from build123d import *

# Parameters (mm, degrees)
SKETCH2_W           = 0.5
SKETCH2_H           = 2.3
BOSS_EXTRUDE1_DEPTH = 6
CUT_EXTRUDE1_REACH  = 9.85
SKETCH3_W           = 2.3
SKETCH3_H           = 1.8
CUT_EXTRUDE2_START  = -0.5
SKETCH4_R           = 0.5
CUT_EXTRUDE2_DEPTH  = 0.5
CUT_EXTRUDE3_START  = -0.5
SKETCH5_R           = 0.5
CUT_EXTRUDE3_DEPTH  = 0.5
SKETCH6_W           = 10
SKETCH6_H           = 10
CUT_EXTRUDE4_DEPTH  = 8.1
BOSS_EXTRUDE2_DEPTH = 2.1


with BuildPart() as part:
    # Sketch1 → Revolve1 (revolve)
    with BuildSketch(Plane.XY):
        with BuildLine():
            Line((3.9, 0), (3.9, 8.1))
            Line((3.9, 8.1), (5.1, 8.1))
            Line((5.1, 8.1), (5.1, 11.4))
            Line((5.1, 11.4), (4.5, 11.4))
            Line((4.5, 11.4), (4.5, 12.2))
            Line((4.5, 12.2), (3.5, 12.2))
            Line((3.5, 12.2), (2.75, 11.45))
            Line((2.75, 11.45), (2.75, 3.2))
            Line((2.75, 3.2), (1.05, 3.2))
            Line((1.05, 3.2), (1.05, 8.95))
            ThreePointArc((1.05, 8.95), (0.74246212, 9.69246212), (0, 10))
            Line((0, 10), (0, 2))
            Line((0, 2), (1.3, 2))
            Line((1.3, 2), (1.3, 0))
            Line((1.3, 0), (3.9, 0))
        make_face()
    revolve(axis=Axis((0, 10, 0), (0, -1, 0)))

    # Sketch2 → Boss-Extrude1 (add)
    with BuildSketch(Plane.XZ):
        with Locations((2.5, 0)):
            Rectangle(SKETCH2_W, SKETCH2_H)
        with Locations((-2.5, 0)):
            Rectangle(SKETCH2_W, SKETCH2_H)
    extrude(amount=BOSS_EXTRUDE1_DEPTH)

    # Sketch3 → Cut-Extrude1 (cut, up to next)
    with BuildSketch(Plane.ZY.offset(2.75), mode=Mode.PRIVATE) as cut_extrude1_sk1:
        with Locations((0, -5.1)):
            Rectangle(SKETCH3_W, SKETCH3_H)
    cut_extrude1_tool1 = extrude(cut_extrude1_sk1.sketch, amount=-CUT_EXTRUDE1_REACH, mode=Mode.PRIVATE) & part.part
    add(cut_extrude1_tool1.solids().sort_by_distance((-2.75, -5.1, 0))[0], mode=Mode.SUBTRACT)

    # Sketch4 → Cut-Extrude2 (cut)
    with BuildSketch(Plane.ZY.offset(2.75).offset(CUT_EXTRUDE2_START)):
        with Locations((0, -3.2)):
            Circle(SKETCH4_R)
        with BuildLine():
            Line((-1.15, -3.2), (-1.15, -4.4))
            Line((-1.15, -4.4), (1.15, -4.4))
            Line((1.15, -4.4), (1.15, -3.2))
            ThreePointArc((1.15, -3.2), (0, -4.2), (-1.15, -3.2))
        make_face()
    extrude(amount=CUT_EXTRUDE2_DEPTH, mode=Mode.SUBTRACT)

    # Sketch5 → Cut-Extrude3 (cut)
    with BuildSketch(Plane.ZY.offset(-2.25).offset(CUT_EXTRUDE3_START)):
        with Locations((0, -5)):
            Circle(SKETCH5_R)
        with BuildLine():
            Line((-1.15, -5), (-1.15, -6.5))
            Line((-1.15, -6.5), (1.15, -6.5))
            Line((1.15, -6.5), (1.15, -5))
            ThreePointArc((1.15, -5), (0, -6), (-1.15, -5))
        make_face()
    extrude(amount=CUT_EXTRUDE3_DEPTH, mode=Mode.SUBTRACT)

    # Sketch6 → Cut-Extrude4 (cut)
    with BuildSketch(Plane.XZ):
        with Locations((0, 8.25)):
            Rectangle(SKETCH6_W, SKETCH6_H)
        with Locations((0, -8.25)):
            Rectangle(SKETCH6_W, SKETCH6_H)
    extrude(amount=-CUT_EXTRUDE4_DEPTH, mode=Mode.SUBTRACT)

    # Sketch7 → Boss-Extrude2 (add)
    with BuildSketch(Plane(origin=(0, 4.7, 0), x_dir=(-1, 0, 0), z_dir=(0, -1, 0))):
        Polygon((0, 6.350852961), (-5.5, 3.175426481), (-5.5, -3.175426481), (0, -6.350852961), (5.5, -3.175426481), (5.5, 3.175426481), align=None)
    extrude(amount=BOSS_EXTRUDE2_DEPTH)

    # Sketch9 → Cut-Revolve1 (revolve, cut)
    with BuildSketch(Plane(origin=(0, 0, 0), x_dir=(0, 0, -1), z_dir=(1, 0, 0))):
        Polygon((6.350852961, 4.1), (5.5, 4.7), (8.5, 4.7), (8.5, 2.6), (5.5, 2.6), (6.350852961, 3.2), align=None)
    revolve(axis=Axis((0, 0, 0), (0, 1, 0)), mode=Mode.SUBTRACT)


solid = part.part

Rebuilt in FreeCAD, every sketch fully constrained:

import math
import FreeCAD as App
import Part
import Sketcher
Q = App.Units.Quantity


def add_polygon(sketch, points):
    """Adds a closed chain of lines whose ends are joined by coincident constraints."""
    first, n = sketch.GeometryCount, len(points)
    for a, b in zip(points, points[1:] + points[:1]):
        sketch.addGeometry(Part.LineSegment(App.Vector(*a, 0), App.Vector(*b, 0)), False)
    for i in range(n):
        sketch.addConstraint(Sketcher.Constraint("Coincident", first + i, 2, first + (i + 1) % n, 1))

doc = App.newDocument("Part")
body = doc.addObject("PartDesign::Body", "Body")

# Sketch on XY plane
sketch1 = body.newObject("Sketcher::SketchObject", "Sketch")
sketch1.AttachmentSupport = (doc.getObject("XY_Plane"), [""])
sketch1.MapMode = "FlatFace"
sketch1.addGeometry(Part.LineSegment(App.Vector(3.9, 0, 0), App.Vector(3.9, 8.1, 0)), False)
sketch1.addGeometry(Part.LineSegment(App.Vector(3.9, 8.1, 0), App.Vector(5.1, 8.1, 0)), False)
sketch1.addGeometry(Part.LineSegment(App.Vector(5.1, 8.1, 0), App.Vector(5.1, 11.4, 0)), False)
sketch1.addGeometry(Part.LineSegment(App.Vector(5.1, 11.4, 0), App.Vector(4.5, 11.4, 0)), False)
sketch1.addGeometry(Part.LineSegment(App.Vector(4.5, 11.4, 0), App.Vector(4.5, 12.2, 0)), False)
sketch1.addGeometry(Part.LineSegment(App.Vector(4.5, 12.2, 0), App.Vector(3.5, 12.2, 0)), False)
sketch1.addGeometry(Part.LineSegment(App.Vector(3.5, 12.2, 0), App.Vector(2.75, 11.45, 0)), False)
sketch1.addGeometry(Part.LineSegment(App.Vector(2.75, 11.45, 0), App.Vector(2.75, 3.2, 0)), False)
sketch1.addGeometry(Part.LineSegment(App.Vector(2.75, 3.2, 0), App.Vector(1.05, 3.2, 0)), False)
sketch1.addGeometry(Part.LineSegment(App.Vector(1.05, 3.2, 0), App.Vector(1.05, 8.95, 0)), False)
sketch1.addGeometry(Part.ArcOfCircle(Part.Circle(App.Vector(0, 8.95, 0), App.Vector(0, 0, 1), 1.05), math.radians(0), math.radians(90)), False)
sketch1.addGeometry(Part.LineSegment(App.Vector(0, 10, 0), App.Vector(0, 2, 0)), False)
sketch1.addGeometry(Part.LineSegment(App.Vector(0, 2, 0), App.Vector(1.3, 2, 0)), False)
sketch1.addGeometry(Part.LineSegment(App.Vector(1.3, 2, 0), App.Vector(1.3, 0, 0)), False)
sketch1.addGeometry(Part.LineSegment(App.Vector(1.3, 0, 0), App.Vector(3.9, 0, 0)), False)
sketch1.addConstraint(Sketcher.Constraint("Coincident", 0, 2, 1, 1))
sketch1.addConstraint(Sketcher.Constraint("Coincident", 1, 2, 2, 1))
sketch1.addConstraint(Sketcher.Constraint("Coincident", 2, 2, 3, 1))
sketch1.addConstraint(Sketcher.Constraint("Coincident", 3, 2, 4, 1))
sketch1.addConstraint(Sketcher.Constraint("Coincident", 4, 2, 5, 1))
sketch1.addConstraint(Sketcher.Constraint("Coincident", 5, 2, 6, 1))
sketch1.addConstraint(Sketcher.Constraint("Coincident", 6, 2, 7, 1))
sketch1.addConstraint(Sketcher.Constraint("Coincident", 7, 2, 8, 1))
sketch1.addConstraint(Sketcher.Constraint("Coincident", 8, 2, 9, 1))
sketch1.addConstraint(Sketcher.Constraint("Tangent", 9, 2, 10, 1))
sketch1.addConstraint(Sketcher.Constraint("Coincident", 10, 2, 11, 1))
sketch1.addConstraint(Sketcher.Constraint("Coincident", 11, 2, 12, 1))
sketch1.addConstraint(Sketcher.Constraint("Coincident", 12, 2, 13, 1))
sketch1.addConstraint(Sketcher.Constraint("Coincident", 13, 2, 14, 1))
sketch1.addConstraint(Sketcher.Constraint("Coincident", 14, 2, 0, 1))
sketch1.addConstraint(Sketcher.Constraint("Vertical", 0))
sketch1.addConstraint(Sketcher.Constraint("Horizontal", 1))
sketch1.addConstraint(Sketcher.Constraint("Vertical", 2))
sketch1.addConstraint(Sketcher.Constraint("Horizontal", 3))
sketch1.addConstraint(Sketcher.Constraint("Vertical", 4))
sketch1.addConstraint(Sketcher.Constraint("Horizontal", 5))
sketch1.addConstraint(Sketcher.Constraint("Vertical", 7))
sketch1.addConstraint(Sketcher.Constraint("Horizontal", 8))
sketch1.addConstraint(Sketcher.Constraint("Vertical", 9))
sketch1.addConstraint(Sketcher.Constraint("Vertical", 11))
sketch1.addConstraint(Sketcher.Constraint("Horizontal", 12))
sketch1.addConstraint(Sketcher.Constraint("Vertical", 13))
sketch1.addConstraint(Sketcher.Constraint("Horizontal", 14))
sketch1.addConstraint(Sketcher.Constraint("PointOnObject", 10, 3, -2))
sketch1.addConstraint(Sketcher.Constraint("PointOnObject", 10, 2, -2))
sketch1.addConstraint(Sketcher.Constraint("PointOnObject", 13, 2, -1))
sketch1.addConstraint(Sketcher.Constraint("DistanceX", 5, 2, 5, 1, Q("1 mm")))
sketch1.addConstraint(Sketcher.Constraint("DistanceY", 11, 2, 11, 1, Q("8 mm")))
sketch1.addConstraint(Sketcher.Constraint("DistanceY", 13, 2, 13, 1, Q("2 mm")))
sketch1.addConstraint(Sketcher.Constraint("Angle", 6, Q("-135 deg")))
sketch1.addConstraint(Sketcher.Constraint("Radius", 10, Q("1.05 mm")))
sketch1.addConstraint(Sketcher.Constraint("DistanceX", 1, 1, 1, 2, Q("1.2 mm")))
sketch1.addConstraint(Sketcher.Constraint("DistanceX", 3, 2, 3, 1, Q("0.6 mm")))
sketch1.addConstraint(Sketcher.Constraint("DistanceX", 8, 2, 8, 1, Q("1.7 mm")))
sketch1.addConstraint(Sketcher.Constraint("DistanceX", 12, 1, 12, 2, Q("1.3 mm")))
sketch1.addConstraint(Sketcher.Constraint("DistanceX", 14, 1, 14, 2, Q("2.6 mm")))
sketch1.addConstraint(Sketcher.Constraint("DistanceY", 0, 1, 0, 2, Q("8.1 mm")))
sketch1.addConstraint(Sketcher.Constraint("DistanceY", 2, 1, 2, 2, Q("3.3 mm")))
sketch1.addConstraint(Sketcher.Constraint("DistanceY", 4, 1, 4, 2, Q("0.8 mm")))
sketch1.addConstraint(Sketcher.Constraint("DistanceY", 7, 2, 7, 1, Q("8.25 mm")))
revolution = body.newObject("PartDesign::Revolution", "Revolution")
revolution.Profile = sketch1
revolution.ReferenceAxis = (sketch1, ["V_Axis"])
revolution.Angle = 360

# Sketch on XZ plane
sketch2 = body.newObject("Sketcher::SketchObject", "Sketch001")
sketch2.AttachmentSupport = (doc.getObject("XZ_Plane"), [""])
sketch2.MapMode = "FlatFace"
add_polygon(sketch2, [(2.25, 1.15), (2.25, -1.15), (2.75, -1.15), (2.75, 1.15)])  # lines 0-3
add_polygon(sketch2, [(-2.75, 1.15), (-2.75, -1.15), (-2.25, -1.15), (-2.25, 1.15)])  # lines 4-7
sketch2.addConstraint(Sketcher.Constraint("Vertical", 0))
sketch2.addConstraint(Sketcher.Constraint("Horizontal", 1))
sketch2.addConstraint(Sketcher.Constraint("Vertical", 2))
sketch2.addConstraint(Sketcher.Constraint("Horizontal", 3))
sketch2.addConstraint(Sketcher.Constraint("Vertical", 4))
sketch2.addConstraint(Sketcher.Constraint("Horizontal", 5))
sketch2.addConstraint(Sketcher.Constraint("Vertical", 6))
sketch2.addConstraint(Sketcher.Constraint("Horizontal", 7))
sketch2.addConstraint(Sketcher.Constraint("Symmetric", 2, 2, 4, 2, -1, 1))
sketch2.addConstraint(Sketcher.Constraint("Symmetric", 0, 2, 6, 2, -1, 1))
sketch2.addConstraint(Sketcher.Constraint("Horizontal", 1, 2, 4, 2))
sketch2.addConstraint(Sketcher.Constraint("DistanceX", 1, 1, 1, 2, Q("0.5 mm")))
sketch2.addConstraint(Sketcher.Constraint("DistanceY", 0, 2, 0, 1, Q("2.3 mm")))
sketch2.addConstraint(Sketcher.Constraint("DistanceX", 4, 2, 0, 2, Q("5 mm")))
pad1 = body.newObject("PartDesign::Pad", "Pad")
pad1.Profile = sketch2
pad1.Length = 6

# Sketch on YZ plane
sketch3 = body.newObject("Sketcher::SketchObject", "Sketch002")
sketch3.AttachmentSupport = (doc.getObject("YZ_Plane"), [""])
sketch3.MapMode = "FlatFace"
sketch3.AttachmentOffset = App.Placement(App.Vector(0, 0, -2.75), App.Rotation())
add_polygon(sketch3, [(-4.2, -1.15), (-6, -1.15), (-6, 1.15), (-4.2, 1.15)])  # lines 0-3
sketch3.addConstraint(Sketcher.Constraint("Horizontal", 0))
sketch3.addConstraint(Sketcher.Constraint("Vertical", 1))
sketch3.addConstraint(Sketcher.Constraint("Horizontal", 2))
sketch3.addConstraint(Sketcher.Constraint("Vertical", 3))
sketch3.addConstraint(Sketcher.Constraint("DistanceX", 0, 2, 0, 1, Q("1.8 mm")))
sketch3.addConstraint(Sketcher.Constraint("DistanceY", 1, 1, 1, 2, Q("2.3 mm")))
sketch3.addConstraint(Sketcher.Constraint("DistanceX", 0, 2, -1, 1, Q("6 mm")))
sketch3.addConstraint(Sketcher.Constraint("DistanceY", 0, 2, -1, 1, Q("1.15 mm")))
pocket1 = body.newObject("PartDesign::Pocket", "Pocket")
pocket1.Profile = sketch3
pocket1.Type = "UpToFirst"
pocket1.Reversed = True

# Sketch on YZ plane
sketch4 = body.newObject("Sketcher::SketchObject", "Sketch003")
sketch4.AttachmentSupport = (doc.getObject("YZ_Plane"), [""])
sketch4.MapMode = "FlatFace"
sketch4.AttachmentOffset = App.Placement(App.Vector(0, 0, -2.25), App.Rotation())
sketch4.addGeometry(Part.Circle(App.Vector(-3.2, 0, 0), App.Vector(0, 0, 1), 0.5), False)
sketch4.addGeometry(Part.LineSegment(App.Vector(-3.2, -1.15, 0), App.Vector(-4.4, -1.15, 0)), False)
sketch4.addGeometry(Part.LineSegment(App.Vector(-4.4, -1.15, 0), App.Vector(-4.4, 1.15, 0)), False)
sketch4.addGeometry(Part.LineSegment(App.Vector(-4.4, 1.15, 0), App.Vector(-3.2, 1.15, 0)), False)
sketch4.addGeometry(Part.ArcOfCircle(Part.Circle(App.Vector(-3.03875, 0, 0), App.Vector(0, 0, 1), 1.16125), math.radians(97.981826), math.radians(262.018174)), False)
sketch4.addConstraint(Sketcher.Constraint("Coincident", 1, 2, 2, 1))
sketch4.addConstraint(Sketcher.Constraint("Coincident", 2, 2, 3, 1))
sketch4.addConstraint(Sketcher.Constraint("Coincident", 3, 2, 4, 1))
sketch4.addConstraint(Sketcher.Constraint("Coincident", 4, 2, 1, 1))
sketch4.addConstraint(Sketcher.Constraint("Horizontal", 1))
sketch4.addConstraint(Sketcher.Constraint("Vertical", 2))
sketch4.addConstraint(Sketcher.Constraint("Horizontal", 3))
sketch4.addConstraint(Sketcher.Constraint("Symmetric", 3, 2, 4, 2, -1))
sketch4.addConstraint(Sketcher.Constraint("PointOnObject", 0, 3, -1))
sketch4.addConstraint(Sketcher.Constraint("Vertical", 0, 3, 3, 2))
sketch4.addConstraint(Sketcher.Constraint("Diameter", 0, Q("1 mm")))
sketch4.addConstraint(Sketcher.Constraint("DistanceX", 1, 2, 1, 1, Q("1.2 mm")))
sketch4.addConstraint(Sketcher.Constraint("DistanceY", 2, 1, 2, 2, Q("2.3 mm")))
sketch4.addConstraint(Sketcher.Constraint("DistanceX", 0, 3, -1, 1, Q("3.2 mm")))
sketch4.addConstraint(Sketcher.Constraint("Radius", 4, Q("1.16125 mm")))
pocket2 = body.newObject("PartDesign::Pocket", "Pocket001")
pocket2.Profile = sketch4
pocket2.Length = 0.5

# Sketch on YZ plane
sketch5 = body.newObject("Sketcher::SketchObject", "Sketch004")
sketch5.AttachmentSupport = (doc.getObject("YZ_Plane"), [""])
sketch5.MapMode = "FlatFace"
sketch5.AttachmentOffset = App.Placement(App.Vector(0, 0, 2.75), App.Rotation())
sketch5.addGeometry(Part.Circle(App.Vector(-5, 0, 0), App.Vector(0, 0, 1), 0.5), False)
sketch5.addGeometry(Part.LineSegment(App.Vector(-5, -1.15, 0), App.Vector(-6.5, -1.15, 0)), False)
sketch5.addGeometry(Part.LineSegment(App.Vector(-6.5, -1.15, 0), App.Vector(-6.5, 1.15, 0)), False)
sketch5.addGeometry(Part.LineSegment(App.Vector(-6.5, 1.15, 0), App.Vector(-5, 1.15, 0)), False)
sketch5.addGeometry(Part.ArcOfCircle(Part.Circle(App.Vector(-4.83875, 0, 0), App.Vector(0, 0, 1), 1.16125), math.radians(97.981826), math.radians(262.018174)), False)
sketch5.addConstraint(Sketcher.Constraint("Coincident", 1, 2, 2, 1))
sketch5.addConstraint(Sketcher.Constraint("Coincident", 2, 2, 3, 1))
sketch5.addConstraint(Sketcher.Constraint("Coincident", 3, 2, 4, 1))
sketch5.addConstraint(Sketcher.Constraint("Coincident", 4, 2, 1, 1))
sketch5.addConstraint(Sketcher.Constraint("Horizontal", 1))
sketch5.addConstraint(Sketcher.Constraint("Vertical", 2))
sketch5.addConstraint(Sketcher.Constraint("Horizontal", 3))
sketch5.addConstraint(Sketcher.Constraint("Symmetric", 3, 2, 4, 2, -1))
sketch5.addConstraint(Sketcher.Constraint("PointOnObject", 0, 3, -1))
sketch5.addConstraint(Sketcher.Constraint("Vertical", 0, 3, 3, 2))
sketch5.addConstraint(Sketcher.Constraint("Diameter", 0, Q("1 mm")))
sketch5.addConstraint(Sketcher.Constraint("DistanceX", 1, 2, 1, 1, Q("1.5 mm")))
sketch5.addConstraint(Sketcher.Constraint("DistanceY", 2, 1, 2, 2, Q("2.3 mm")))
sketch5.addConstraint(Sketcher.Constraint("DistanceX", 0, 3, -1, 1, Q("5 mm")))
sketch5.addConstraint(Sketcher.Constraint("Radius", 4, Q("1.16125 mm")))
pocket3 = body.newObject("PartDesign::Pocket", "Pocket002")
pocket3.Profile = sketch5
pocket3.Length = 0.5

# Sketch on XZ plane
sketch6 = body.newObject("Sketcher::SketchObject", "Sketch005")
sketch6.AttachmentSupport = (doc.getObject("XZ_Plane"), [""])
sketch6.MapMode = "FlatFace"
add_polygon(sketch6, [(-5, 13.25), (-5, 3.25), (5, 3.25), (5, 13.25)])  # lines 0-3
add_polygon(sketch6, [(-5, -3.25), (-5, -13.25), (5, -13.25), (5, -3.25)])  # lines 4-7
sketch6.addConstraint(Sketcher.Constraint("Vertical", 0))
sketch6.addConstraint(Sketcher.Constraint("Horizontal", 1))
sketch6.addConstraint(Sketcher.Constraint("Vertical", 2))
sketch6.addConstraint(Sketcher.Constraint("Horizontal", 3))
sketch6.addConstraint(Sketcher.Constraint("Vertical", 4))
sketch6.addConstraint(Sketcher.Constraint("Horizontal", 5))
sketch6.addConstraint(Sketcher.Constraint("Vertical", 6))
sketch6.addConstraint(Sketcher.Constraint("Horizontal", 7))
sketch6.addConstraint(Sketcher.Constraint("Symmetric", 2, 2, 4, 2, -1, 1))
sketch6.addConstraint(Sketcher.Constraint("Symmetric", 0, 2, 6, 2, -1, 1))
sketch6.addConstraint(Sketcher.Constraint("Vertical", 3, 2, 4, 2))
sketch6.addConstraint(Sketcher.Constraint("Equal", 7, 0))
sketch6.addConstraint(Sketcher.Constraint("DistanceX", 1, 1, 1, 2, Q("10 mm")))
sketch6.addConstraint(Sketcher.Constraint("DistanceY", 4, 2, 0, 2, Q("16.5 mm")))
pocket4 = body.newObject("PartDesign::Pocket", "Pocket003")
pocket4.Profile = sketch6
pocket4.Length = 8.1

# Sketch on XZ plane
sketch7 = body.newObject("Sketcher::SketchObject", "Sketch006")
sketch7.AttachmentSupport = (doc.getObject("XZ_Plane"), [""])
sketch7.MapMode = "FlatFace"
sketch7.AttachmentOffset = App.Placement(App.Vector(0, 0, -4.7), App.Rotation())
add_polygon(sketch7, [(0, -6.350853), (5.5, -3.175426), (5.5, 3.175426), (0, 6.350853), (-5.5, 3.175426), (-5.5, -3.175426)])  # lines 0-5
sketch7.addConstraint(Sketcher.Constraint("Vertical", 1))
sketch7.addConstraint(Sketcher.Constraint("Vertical", 4))
sketch7.addConstraint(Sketcher.Constraint("Symmetric", 0, 2, 3, 2, -1, 1))
sketch7.addConstraint(Sketcher.Constraint("Symmetric", 2, 2, 5, 2, -1, 1))
sketch7.addConstraint(Sketcher.Constraint("PointOnObject", 2, 2, -2))
sketch7.addConstraint(Sketcher.Constraint("Parallel", 2, 5))
sketch7.addConstraint(Sketcher.Constraint("Horizontal", 1, 2, 3, 2))
sketch7.addConstraint(Sketcher.Constraint("Angle", 0, Q("30 deg")))
sketch7.addConstraint(Sketcher.Constraint("DistanceX", 3, 2, 1, 2, Q("11 mm")))
sketch7.addConstraint(Sketcher.Constraint("DistanceY", 1, 1, 1, 2, Q("6.350853 mm")))
pad2 = body.newObject("PartDesign::Pad", "Pad001")
pad2.Profile = sketch7
pad2.Length = 2.1

# Sketch on YZ plane
sketch8 = body.newObject("Sketcher::SketchObject", "Sketch007")
sketch8.AttachmentSupport = (doc.getObject("YZ_Plane"), [""])
sketch8.MapMode = "FlatFace"
add_polygon(sketch8, [(4.7, -5.5), (4.1, -6.350853), (3.2, -6.350853), (2.6, -5.5), (2.6, -8.5), (4.7, -8.5)])  # lines 0-5
sketch8.addConstraint(Sketcher.Constraint("Horizontal", 1))
sketch8.addConstraint(Sketcher.Constraint("Vertical", 3))
sketch8.addConstraint(Sketcher.Constraint("Horizontal", 4))
sketch8.addConstraint(Sketcher.Constraint("Vertical", 5))
sketch8.addConstraint(Sketcher.Constraint("Horizontal", 2, 2, 5, 2))
sketch8.addConstraint(Sketcher.Constraint("Equal", 0, 2))
sketch8.addConstraint(Sketcher.Constraint("DistanceY", 3, 2, 3, 1, Q("3 mm")))
sketch8.addConstraint(Sketcher.Constraint("DistanceX", 1, 2, 1, 1, Q("0.9 mm")))
sketch8.addConstraint(Sketcher.Constraint("DistanceX", 4, 1, 4, 2, Q("2.1 mm")))
sketch8.addConstraint(Sketcher.Constraint("DistanceX", -1, 1, 0, 2, Q("4.1 mm")))
sketch8.addConstraint(Sketcher.Constraint("DistanceY", 2, 2, -1, 1, Q("5.5 mm")))
sketch8.addConstraint(Sketcher.Constraint("Distance", 0, Q("1.04113 mm")))
groove = body.newObject("PartDesign::Groove", "Groove")
groove.Profile = sketch8
groove.ReferenceAxis = (sketch8, ["H_Axis"])
groove.Angle = 360

doc.recompute()
